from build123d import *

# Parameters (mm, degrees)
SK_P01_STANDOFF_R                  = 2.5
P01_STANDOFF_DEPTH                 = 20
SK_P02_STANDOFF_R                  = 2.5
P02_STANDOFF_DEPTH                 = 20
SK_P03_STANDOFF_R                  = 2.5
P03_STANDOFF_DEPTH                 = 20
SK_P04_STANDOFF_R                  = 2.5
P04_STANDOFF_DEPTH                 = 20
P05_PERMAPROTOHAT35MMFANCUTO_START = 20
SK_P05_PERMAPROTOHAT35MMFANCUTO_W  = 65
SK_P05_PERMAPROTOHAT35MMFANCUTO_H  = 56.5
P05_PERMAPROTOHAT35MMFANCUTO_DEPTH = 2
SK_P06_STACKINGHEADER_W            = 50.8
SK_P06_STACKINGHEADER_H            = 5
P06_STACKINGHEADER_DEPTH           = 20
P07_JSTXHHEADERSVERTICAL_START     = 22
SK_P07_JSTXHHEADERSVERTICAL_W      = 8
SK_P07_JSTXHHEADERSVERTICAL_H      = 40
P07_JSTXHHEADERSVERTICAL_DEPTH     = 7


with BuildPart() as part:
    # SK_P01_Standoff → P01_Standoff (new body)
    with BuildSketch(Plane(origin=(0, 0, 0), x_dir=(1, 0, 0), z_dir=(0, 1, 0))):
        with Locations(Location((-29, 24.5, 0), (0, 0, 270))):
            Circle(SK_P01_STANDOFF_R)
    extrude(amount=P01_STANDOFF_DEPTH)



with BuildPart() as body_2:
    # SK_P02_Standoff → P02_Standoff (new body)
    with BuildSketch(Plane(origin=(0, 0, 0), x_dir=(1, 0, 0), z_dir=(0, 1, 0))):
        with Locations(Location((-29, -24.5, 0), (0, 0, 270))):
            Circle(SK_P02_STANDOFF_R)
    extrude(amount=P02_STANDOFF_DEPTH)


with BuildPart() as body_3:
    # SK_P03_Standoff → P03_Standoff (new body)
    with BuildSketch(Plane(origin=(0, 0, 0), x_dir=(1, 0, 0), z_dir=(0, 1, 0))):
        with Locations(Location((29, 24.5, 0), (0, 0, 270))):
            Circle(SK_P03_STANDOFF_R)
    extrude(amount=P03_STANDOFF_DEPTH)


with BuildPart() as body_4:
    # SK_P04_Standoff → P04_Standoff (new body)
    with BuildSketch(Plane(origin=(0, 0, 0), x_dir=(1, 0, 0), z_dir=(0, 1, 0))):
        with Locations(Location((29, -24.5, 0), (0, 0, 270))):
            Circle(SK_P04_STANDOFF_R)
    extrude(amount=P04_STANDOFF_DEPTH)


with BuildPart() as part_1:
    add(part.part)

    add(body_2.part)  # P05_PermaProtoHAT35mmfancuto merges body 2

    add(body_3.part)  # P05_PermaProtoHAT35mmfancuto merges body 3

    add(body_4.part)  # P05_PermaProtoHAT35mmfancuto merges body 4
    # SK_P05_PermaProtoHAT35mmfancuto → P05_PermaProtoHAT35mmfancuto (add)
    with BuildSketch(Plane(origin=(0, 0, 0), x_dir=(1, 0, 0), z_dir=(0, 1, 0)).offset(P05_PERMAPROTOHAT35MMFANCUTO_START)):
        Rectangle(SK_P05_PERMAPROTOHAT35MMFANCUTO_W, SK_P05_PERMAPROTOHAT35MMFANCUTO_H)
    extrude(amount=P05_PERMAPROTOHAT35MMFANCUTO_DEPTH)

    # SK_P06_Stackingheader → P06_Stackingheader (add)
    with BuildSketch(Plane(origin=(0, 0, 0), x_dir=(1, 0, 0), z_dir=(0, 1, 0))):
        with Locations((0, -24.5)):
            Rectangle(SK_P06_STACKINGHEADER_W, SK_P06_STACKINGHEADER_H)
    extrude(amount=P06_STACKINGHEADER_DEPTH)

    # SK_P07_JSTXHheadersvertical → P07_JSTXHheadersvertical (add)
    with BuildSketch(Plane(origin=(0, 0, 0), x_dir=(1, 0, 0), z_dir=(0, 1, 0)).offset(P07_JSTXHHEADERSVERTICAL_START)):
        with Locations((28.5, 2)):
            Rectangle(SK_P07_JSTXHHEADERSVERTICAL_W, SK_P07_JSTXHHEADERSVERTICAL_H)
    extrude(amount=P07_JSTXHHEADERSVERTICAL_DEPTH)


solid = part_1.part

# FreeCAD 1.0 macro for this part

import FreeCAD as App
import Part
import Sketcher

V = App.Vector

doc = App.newDocument("Part")
body = doc.addObject("PartDesign::Body", "Body")

# Sketch on XZ plane
sketch1 = body.newObject("Sketcher::SketchObject", "Sketch")
sketch1.AttachmentSupport = (doc.getObject("XZ_Plane"), [""])
sketch1.MapMode = "FlatFace"
sketch1.addGeometry(Part.Circle(V(-29, -24.5, 0), V(0, 0, 1), 2.5), False)
sketch1.addConstraint(Sketcher.Constraint("Diameter", 0, 5.0))
sketch1.addConstraint(Sketcher.Constraint("DistanceX", 0, 3, -1, 1, 29.0))
sketch1.addConstraint(Sketcher.Constraint("DistanceY", 0, 3, -1, 1, 24.5))
pad1 = body.newObject("PartDesign::Pad", "Pad")
pad1.Profile = sketch1
pad1.Length = 20
pad1.Reversed = True
body2 = doc.addObject("PartDesign::Body", "Body001")

# Sketch on XZ plane
sketch2 = body2.newObject("Sketcher::SketchObject", "Sketch001")
sketch2.AttachmentSupport = (doc.getObject("XZ_Plane001"), [""])
sketch2.MapMode = "FlatFace"
sketch2.addGeometry(Part.Circle(V(-29, 24.5, 0), V(0, 0, 1), 2.5), False)
sketch2.addConstraint(Sketcher.Constraint("Diameter", 0, 5.0))
sketch2.addConstraint(Sketcher.Constraint("DistanceX", 0, 3, -1, 1, 29.0))
sketch2.addConstraint(Sketcher.Constraint("DistanceY", -1, 1, 0, 3, 24.5))
pad2 = body2.newObject("PartDesign::Pad", "Pad001")
pad2.Profile = sketch2
pad2.Length = 20
pad2.Reversed = True
body3 = doc.addObject("PartDesign::Body", "Body002")

# Sketch on XZ plane
sketch3 = body3.newObject("Sketcher::SketchObject", "Sketch002")
sketch3.AttachmentSupport = (doc.getObject("XZ_Plane002"), [""])
sketch3.MapMode = "FlatFace"
sketch3.addGeometry(Part.Circle(V(29, -24.5, 0), V(0, 0, 1), 2.5), False)
sketch3.addConstraint(Sketcher.Constraint("Diameter", 0, 5.0))
sketch3.addConstraint(Sketcher.Constraint("DistanceX", -1, 1, 0, 3, 29.0))
sketch3.addConstraint(Sketcher.Constraint("DistanceY", 0, 3, -1, 1, 24.5))
pad3 = body3.newObject("PartDesign::Pad", "Pad002")
pad3.Profile = sketch3
pad3.Length = 20
pad3.Reversed = True
body4 = doc.addObject("PartDesign::Body", "Body003")

# Sketch on XZ plane
sketch4 = body4.newObject("Sketcher::SketchObject", "Sketch003")
sketch4.AttachmentSupport = (doc.getObject("XZ_Plane003"), [""])
sketch4.MapMode = "FlatFace"
sketch4.addGeometry(Part.Circle(V(29, 24.5, 0), V(0, 0, 1), 2.5), False)
sketch4.addConstraint(Sketcher.Constraint("Diameter", 0, 5.0))
sketch4.addConstraint(Sketcher.Constraint("DistanceX", -1, 1, 0, 3, 29.0))
sketch4.addConstraint(Sketcher.Constraint("DistanceY", -1, 1, 0, 3, 24.5))
pad4 = body4.newObject("PartDesign::Pad", "Pad003")
pad4.Profile = sketch4
pad4.Length = 20
pad4.Reversed = True
body.AllowCompound = True
doc.recompute()

boolean = body.newObject("PartDesign::Boolean", "Boolean")
boolean.Type = "Fuse"
boolean.addObjects([body2])
doc.recompute()

boolean2 = body.newObject("PartDesign::Boolean", "Boolean001")
boolean2.Type = "Fuse"
boolean2.addObjects([body3])
doc.recompute()

boolean3 = body.newObject("PartDesign::Boolean", "Boolean002")
boolean3.Type = "Fuse"
boolean3.addObjects([body4])

# Sketch on XZ plane
sketch5 = body.newObject("Sketcher::SketchObject", "Sketch004")
sketch5.AttachmentSupport = (doc.getObject("XZ_Plane"), [""])
sketch5.MapMode = "FlatFace"
sketch5.AttachmentOffset = App.Placement(V(0, 0, -20), App.Rotation())
sketch5.addGeometry(Part.LineSegment(V(-32, -28, 0), V(-32, 28, 0)), False)
sketch5.addGeometry(Part.LineSegment(V(-32, 28, 0), V(32, 28, 0)), False)
sketch5.addGeometry(Part.LineSegment(V(32, 28, 0), V(32, -28, 0)), False)
sketch5.addGeometry(Part.LineSegment(V(32, -28, 0), V(-32, -28, 0)), False)
sketch5.addConstraint(Sketcher.Constraint("Coincident", 0, 2, 1, 1))
sketch5.addConstraint(Sketcher.Constraint("Coincident", 1, 2, 2, 1))
sketch5.addConstraint(Sketcher.Constraint("Coincident", 2, 2, 3, 1))
sketch5.addConstraint(Sketcher.Constraint("Coincident", 3, 2, 0, 1))
sketch5.addConstraint(Sketcher.Constraint("Vertical", 0))
sketch5.addConstraint(Sketcher.Constraint("Horizontal", 1))
sketch5.addConstraint(Sketcher.Constraint("Vertical", 2))
sketch5.addConstraint(Sketcher.Constraint("Horizontal", 3))
sketch5.addConstraint(Sketcher.Constraint("Symmetric", 0, 2, 2, 2, -1, 1))
sketch5.addConstraint(Sketcher.Constraint("DistanceX", 1, 1, 1, 2, 65.0))
sketch5.addConstraint(Sketcher.Constraint("DistanceY", 0, 1, 0, 2, 56.5))
pad5 = body.newObject("PartDesign::Pad", "Pad004")
pad5.Profile = sketch5
pad5.Length = 2
pad5.Reversed = True

# Sketch on XZ plane
sketch6 = body.newObject("Sketcher::SketchObject", "Sketch005")
sketch6.AttachmentSupport = (doc.getObject("XZ_Plane"), [""])
sketch6.MapMode = "FlatFace"
sketch6.addGeometry(Part.LineSegment(V(-25, 22, 0), V(-25, 27, 0)), False)
sketch6.addGeometry(Part.LineSegment(V(-25, 27, 0), V(25, 27, 0)), False)
sketch6.addGeometry(Part.LineSegment(V(25, 27, 0), V(25, 22, 0)), False)
sketch6.addGeometry(Part.LineSegment(V(25, 22, 0), V(-25, 22, 0)), False)
sketch6.addConstraint(Sketcher.Constraint("Coincident", 0, 2, 1, 1))
sketch6.addConstraint(Sketcher.Constraint("Coincident", 1, 2, 2, 1))
sketch6.addConstraint(Sketcher.Constraint("Coincident", 2, 2, 3, 1))
sketch6.addConstraint(Sketcher.Constraint("Coincident", 3, 2, 0, 1))
sketch6.addConstraint(Sketcher.Constraint("Vertical", 0))
sketch6.addConstraint(Sketcher.Constraint("Horizontal", 1))
sketch6.addConstraint(Sketcher.Constraint("Vertical", 2))
sketch6.addConstraint(Sketcher.Constraint("Horizontal", 3))
sketch6.addConstraint(Sketcher.Constraint("DistanceY", 0, 1, 0, 2, 5.0))
sketch6.addConstraint(Sketcher.Constraint("DistanceX", 1, 1, 1, 2, 50.8))
sketch6.addConstraint(Sketcher.Constraint("DistanceY", -1, 1, 0, 2, 27.0))
sketch6.addConstraint(Sketcher.Constraint("DistanceX", 0, 2, -1, 1, 25.4))
pad6 = body.newObject("PartDesign::Pad", "Pad005")
pad6.Profile = sketch6
pad6.Length = 20
pad6.Reversed = True

# Sketch on XZ plane
sketch7 = body.newObject("Sketcher::SketchObject", "Sketch006")
sketch7.AttachmentSupport = (doc.getObject("XZ_Plane"), [""])
sketch7.MapMode = "FlatFace"
sketch7.AttachmentOffset = App.Placement(V(0, 0, -22), App.Rotation())
sketch7.addGeometry(Part.LineSegment(V(24, -22, 0), V(24, 18, 0)), False)
sketch7.addGeometry(Part.LineSegment(V(24, 18, 0), V(32, 18, 0)), False)
sketch7.addGeometry(Part.LineSegment(V(32, 18, 0), V(32, -22, 0)), False)
sketch7.addGeometry(Part.LineSegment(V(32, -22, 0), V(24, -22, 0)), False)
sketch7.addConstraint(Sketcher.Constraint("Coincident", 0, 2, 1, 1))
sketch7.addConstraint(Sketcher.Constraint("Coincident", 1, 2, 2, 1))
sketch7.addConstraint(Sketcher.Constraint("Coincident", 2, 2, 3, 1))
sketch7.addConstraint(Sketcher.Constraint("Coincident", 3, 2, 0, 1))
sketch7.addConstraint(Sketcher.Constraint("Vertical", 0))
sketch7.addConstraint(Sketcher.Constraint("Horizontal", 1))
sketch7.addConstraint(Sketcher.Constraint("Vertical", 2))
sketch7.addConstraint(Sketcher.Constraint("Horizontal", 3))
sketch7.addConstraint(Sketcher.Constraint("DistanceX", 1, 1, 1, 2, 8.0))
sketch7.addConstraint(Sketcher.Constraint("DistanceY", 0, 1, 0, 2, 40.0))
sketch7.addConstraint(Sketcher.Constraint("DistanceY", -1, 1, 0, 2, 18.0))
sketch7.addConstraint(Sketcher.Constraint("DistanceX", -1, 1, 0, 2, 24.5))
pad7 = body.newObject("PartDesign::Pad", "Pad006")
pad7.Profile = sketch7
pad7.Length = 7
pad7.Reversed = True

doc.recompute()
